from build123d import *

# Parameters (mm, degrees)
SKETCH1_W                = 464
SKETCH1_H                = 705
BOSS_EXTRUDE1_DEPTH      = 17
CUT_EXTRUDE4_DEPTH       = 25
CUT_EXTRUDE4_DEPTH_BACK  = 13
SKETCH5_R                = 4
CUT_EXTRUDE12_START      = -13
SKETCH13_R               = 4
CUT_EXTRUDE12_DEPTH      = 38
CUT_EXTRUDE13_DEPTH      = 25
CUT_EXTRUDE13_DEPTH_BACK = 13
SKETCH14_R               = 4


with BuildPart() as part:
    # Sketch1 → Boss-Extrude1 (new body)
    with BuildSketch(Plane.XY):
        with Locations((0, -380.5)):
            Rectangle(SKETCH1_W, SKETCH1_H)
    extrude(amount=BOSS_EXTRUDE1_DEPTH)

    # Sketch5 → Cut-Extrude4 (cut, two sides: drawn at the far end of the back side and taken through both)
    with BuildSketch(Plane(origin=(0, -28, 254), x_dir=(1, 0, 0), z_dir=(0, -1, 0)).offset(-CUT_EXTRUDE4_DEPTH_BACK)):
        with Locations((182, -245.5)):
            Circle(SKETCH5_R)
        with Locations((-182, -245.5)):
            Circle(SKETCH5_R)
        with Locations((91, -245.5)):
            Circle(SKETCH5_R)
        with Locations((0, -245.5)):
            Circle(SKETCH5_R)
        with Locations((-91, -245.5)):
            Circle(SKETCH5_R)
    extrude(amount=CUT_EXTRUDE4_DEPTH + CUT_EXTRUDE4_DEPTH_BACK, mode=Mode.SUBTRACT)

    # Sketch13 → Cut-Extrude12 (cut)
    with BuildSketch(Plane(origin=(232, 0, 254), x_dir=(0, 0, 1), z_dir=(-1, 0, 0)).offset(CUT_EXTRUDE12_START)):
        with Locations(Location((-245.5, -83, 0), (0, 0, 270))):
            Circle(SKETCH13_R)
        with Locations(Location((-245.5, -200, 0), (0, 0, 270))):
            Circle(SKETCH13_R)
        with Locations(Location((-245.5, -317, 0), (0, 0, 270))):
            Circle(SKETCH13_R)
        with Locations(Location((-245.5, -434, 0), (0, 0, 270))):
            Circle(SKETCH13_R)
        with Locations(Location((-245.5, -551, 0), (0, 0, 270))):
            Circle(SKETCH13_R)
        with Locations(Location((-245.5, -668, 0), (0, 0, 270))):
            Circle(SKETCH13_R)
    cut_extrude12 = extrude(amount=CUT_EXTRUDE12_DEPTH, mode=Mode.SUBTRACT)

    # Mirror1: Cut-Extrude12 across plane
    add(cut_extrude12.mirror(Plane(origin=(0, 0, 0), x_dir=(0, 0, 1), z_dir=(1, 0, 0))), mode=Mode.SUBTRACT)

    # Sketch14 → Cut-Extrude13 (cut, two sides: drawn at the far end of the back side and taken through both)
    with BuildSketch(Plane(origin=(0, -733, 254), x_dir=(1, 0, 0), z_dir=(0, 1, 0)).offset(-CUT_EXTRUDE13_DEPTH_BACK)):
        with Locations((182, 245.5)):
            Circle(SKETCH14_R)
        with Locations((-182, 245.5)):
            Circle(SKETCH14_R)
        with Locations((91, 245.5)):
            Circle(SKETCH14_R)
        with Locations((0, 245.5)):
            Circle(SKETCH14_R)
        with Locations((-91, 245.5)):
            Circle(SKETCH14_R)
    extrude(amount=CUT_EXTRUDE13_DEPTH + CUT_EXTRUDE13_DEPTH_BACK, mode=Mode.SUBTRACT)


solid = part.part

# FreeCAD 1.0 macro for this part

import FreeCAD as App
import Part
import Sketcher

V = App.Vector
Q = App.Units.Quantity


def add_polygon(sketch, points):
    """Adds a closed chain of lines whose ends are joined by coincident constraints."""
    first, n = sketch.GeometryCount, len(points)
    for a, b in zip(points, points[1:] + points[:1]):
        sketch.addGeometry(Part.LineSegment(App.Vector(*a, 0), App.Vector(*b, 0)), False)
    for i in range(n):
        sketch.addConstraint(Sketcher.Constraint("Coincident", first + i, 2, first + (i + 1) % n, 1))

doc = App.newDocument("Part")
body = doc.addObject("PartDesign::Body", "Body")

# Sketch on XY plane
sketch1 = doc.addObject("Sketcher::SketchObject", "Sketch")
body.addObject(sketch1)
sketch1.AttachmentSupport = (doc.XY_Plane, [""])
sketch1.MapMode = "FlatFace"
add_polygon(sketch1, [(-232, -28), (-232, -733), (232, -733), (232, -28)])  # lines 0-3
sketch1.addConstraint(Sketcher.Constraint("Vertical", 0))
sketch1.addConstraint(Sketcher.Constraint("Horizontal", 1))
sketch1.addConstraint(Sketcher.Constraint("Vertical", 2))
sketch1.addConstraint(Sketcher.Constraint("Horizontal", 3))
sketch1.addConstraint(Sketcher.Constraint("DistanceX", 1, 1, 1, 2, Q("464 mm")))
sketch1.addConstraint(Sketcher.Constraint("DistanceY", 0, 2, 0, 1, Q("705 mm")))
sketch1.addConstraint(Sketcher.Constraint("DistanceX", 0, 2, -1, 1, Q("232 mm")))
sketch1.addConstraint(Sketcher.Constraint("DistanceY", 0, 2, -1, 1, Q("733 mm")))
pad1 = doc.addObject("PartDesign::Pad", "Pad")
body.addObject(pad1)
pad1.Profile = sketch1
pad1.Length = 17

# Sketch on XZ plane
sketch2 = doc.addObject("Sketcher::SketchObject", "Sketch001")
body.addObject(sketch2)
sketch2.AttachmentSupport = (doc.XZ_Plane, [""])
sketch2.MapMode = "FlatFace"
sketch2.AttachmentOffset = App.Placement(V(0, 0, 28), App.Rotation())
sketch2.addGeometry(Part.Circle(V(182, 8.5, 0), V(0, 0, 1), 4), False)
sketch2.addGeometry(Part.Circle(V(-182, 8.5, 0), V(0, 0, 1), 4), False)
sketch2.addGeometry(Part.Circle(V(91, 8.5, 0), V(0, 0, 1), 4), False)
sketch2.addGeometry(Part.Circle(V(0, 8.5, 0), V(0, 0, 1), 4), False)
sketch2.addGeometry(Part.Circle(V(-91, 8.5, 0), V(0, 0, 1), 4), False)
sketch2.addConstraint(Sketcher.Constraint("Equal", 0, 1))
sketch2.addConstraint(Sketcher.Constraint("Equal", 1, 2))
sketch2.addConstraint(Sketcher.Constraint("Equal", 2, 3))
sketch2.addConstraint(Sketcher.Constraint("Equal", 3, 4))
sketch2.addConstraint(Sketcher.Constraint("Symmetric", 0, 3, 1, 3, -2))
sketch2.addConstraint(Sketcher.Constraint("Symmetric", 2, 3, 4, 3, -2))
sketch2.addConstraint(Sketcher.Constraint("PointOnObject", 3, 3, -2))
sketch2.addConstraint(Sketcher.Constraint("Horizontal", 1, 3, 2, 3))
sketch2.addConstraint(Sketcher.Constraint("Horizontal", 2, 3, 3, 3))
sketch2.addConstraint(Sketcher.Constraint("Diameter", 0, Q("8 mm")))
sketch2.addConstraint(Sketcher.Constraint("DistanceX", -1, 1, 0, 3, Q("182 mm")))
sketch2.addConstraint(Sketcher.Constraint("DistanceX", -1, 1, 2, 3, Q("91 mm")))
sketch2.addConstraint(Sketcher.Constraint("DistanceY", -1, 1, 0, 3, Q("8.5 mm")))
pocket1 = doc.addObject("PartDesign::Pocket", "Pocket")
body.addObject(pocket1)
pocket1.Profile = sketch2
pocket1.Type = "TwoLengths"
pocket1.Length = 25
pocket1.Length2 = 13
pocket1.Reversed = True

# Sketch on YZ plane
sketch3 = doc.addObject("Sketcher::SketchObject", "Sketch002")
body.addObject(sketch3)
sketch3.AttachmentSupport = (doc.YZ_Plane, [""])
sketch3.MapMode = "FlatFace"
sketch3.AttachmentOffset = App.Placement(V(0, 0, 245), App.Rotation())
sketch3.addGeometry(Part.Circle(V(-83, 8.5, 0), V(0, 0, 1), 4), False)
sketch3.addGeometry(Part.Circle(V(-200, 8.5, 0), V(0, 0, 1), 4), False)
sketch3.addGeometry(Part.Circle(V(-317, 8.5, 0), V(0, 0, 1), 4), False)
sketch3.addGeometry(Part.Circle(V(-434, 8.5, 0), V(0, 0, 1), 4), False)
sketch3.addGeometry(Part.Circle(V(-551, 8.5, 0), V(0, 0, 1), 4), False)
sketch3.addGeometry(Part.Circle(V(-668, 8.5, 0), V(0, 0, 1), 4), False)
sketch3.addConstraint(Sketcher.Constraint("Equal", 0, 1))
sketch3.addConstraint(Sketcher.Constraint("Equal", 1, 2))
sketch3.addConstraint(Sketcher.Constraint("Equal", 2, 3))
sketch3.addConstraint(Sketcher.Constraint("Equal", 3, 4))
sketch3.addConstraint(Sketcher.Constraint("Equal", 4, 5))
sketch3.addConstraint(Sketcher.Constraint("Horizontal", 0, 3, 1, 3))
sketch3.addConstraint(Sketcher.Constraint("Horizontal", 1, 3, 2, 3))
sketch3.addConstraint(Sketcher.Constraint("Horizontal", 2, 3, 3, 3))
sketch3.addConstraint(Sketcher.Constraint("Horizontal", 3, 3, 4, 3))
sketch3.addConstraint(Sketcher.Constraint("Horizontal", 4, 3, 5, 3))
sketch3.addConstraint(Sketcher.Constraint("Diameter", 0, Q("8 mm")))
sketch3.addConstraint(Sketcher.Constraint("DistanceX", 0, 3, -1, 1, Q("83 mm")))
sketch3.addConstraint(Sketcher.Constraint("DistanceX", 1, 3, -1, 1, Q("200 mm")))
sketch3.addConstraint(Sketcher.Constraint("DistanceX", 2, 3, -1, 1, Q("317 mm")))
sketch3.addConstraint(Sketcher.Constraint("DistanceX", 3, 3, -1, 1, Q("434 mm")))
sketch3.addConstraint(Sketcher.Constraint("DistanceX", 4, 3, -1, 1, Q("551 mm")))
sketch3.addConstraint(Sketcher.Constraint("DistanceX", 5, 3, -1, 1, Q("668 mm")))
sketch3.addConstraint(Sketcher.Constraint("DistanceY", -1, 1, 0, 3, Q("8.5 mm")))
pocket2 = doc.addObject("PartDesign::Pocket", "Pocket001")
body.addObject(pocket2)
pocket2.Profile = sketch3
pocket2.Length = 38
doc.recompute()

mirrored = doc.addObject("PartDesign::Mirrored", "Mirrored")
body.addObject(mirrored)
mirrored.Originals = [pocket2]
mirrored.MirrorPlane = (doc.YZ_Plane, [""])
body.Tip = mirrored

# Sketch on XZ plane
sketch4 = doc.addObject("Sketcher::SketchObject", "Sketch003")
body.addObject(sketch4)
sketch4.AttachmentSupport = (doc.XZ_Plane, [""])
sketch4.MapMode = "FlatFace"
sketch4.AttachmentOffset = App.Placement(V(0, 0, 733), App.Rotation())
sketch4.addGeometry(Part.Circle(V(182, 8.5, 0), V(0, 0, 1), 4), False)
sketch4.addGeometry(Part.Circle(V(-182, 8.5, 0), V(0, 0, 1), 4), False)
sketch4.addGeometry(Part.Circle(V(91, 8.5, 0), V(0, 0, 1), 4), False)
sketch4.addGeometry(Part.Circle(V(0, 8.5, 0), V(0, 0, 1), 4), False)
sketch4.addGeometry(Part.Circle(V(-91, 8.5, 0), V(0, 0, 1), 4), False)
sketch4.addConstraint(Sketcher.Constraint("Equal", 0, 1))
sketch4.addConstraint(Sketcher.Constraint("Equal", 1, 2))
sketch4.addConstraint(Sketcher.Constraint("Equal", 2, 3))
sketch4.addConstraint(Sketcher.Constraint("Equal", 3, 4))
sketch4.addConstraint(Sketcher.Constraint("Symmetric", 0, 3, 1, 3, -2))
sketch4.addConstraint(Sketcher.Constraint("Symmetric", 2, 3, 4, 3, -2))
sketch4.addConstraint(Sketcher.Constraint("PointOnObject", 3, 3, -2))
sketch4.addConstraint(Sketcher.Constraint("Horizontal", 1, 3, 2, 3))
sketch4.addConstraint(Sketcher.Constraint("Horizontal", 2, 3, 3, 3))
sketch4.addConstraint(Sketcher.Constraint("Diameter", 0, Q("8 mm")))
sketch4.addConstraint(Sketcher.Constraint("DistanceX", -1, 1, 0, 3, Q("182 mm")))
sketch4.addConstraint(Sketcher.Constraint("DistanceX", -1, 1, 2, 3, Q("91 mm")))
sketch4.addConstraint(Sketcher.Constraint("DistanceY", -1, 1, 0, 3, Q("8.5 mm")))
pocket3 = doc.addObject("PartDesign::Pocket", "Pocket002")
body.addObject(pocket3)
pocket3.Profile = sketch4
pocket3.Type = "TwoLengths"
pocket3.Length = 25
pocket3.Length2 = 13

doc.recompute()
